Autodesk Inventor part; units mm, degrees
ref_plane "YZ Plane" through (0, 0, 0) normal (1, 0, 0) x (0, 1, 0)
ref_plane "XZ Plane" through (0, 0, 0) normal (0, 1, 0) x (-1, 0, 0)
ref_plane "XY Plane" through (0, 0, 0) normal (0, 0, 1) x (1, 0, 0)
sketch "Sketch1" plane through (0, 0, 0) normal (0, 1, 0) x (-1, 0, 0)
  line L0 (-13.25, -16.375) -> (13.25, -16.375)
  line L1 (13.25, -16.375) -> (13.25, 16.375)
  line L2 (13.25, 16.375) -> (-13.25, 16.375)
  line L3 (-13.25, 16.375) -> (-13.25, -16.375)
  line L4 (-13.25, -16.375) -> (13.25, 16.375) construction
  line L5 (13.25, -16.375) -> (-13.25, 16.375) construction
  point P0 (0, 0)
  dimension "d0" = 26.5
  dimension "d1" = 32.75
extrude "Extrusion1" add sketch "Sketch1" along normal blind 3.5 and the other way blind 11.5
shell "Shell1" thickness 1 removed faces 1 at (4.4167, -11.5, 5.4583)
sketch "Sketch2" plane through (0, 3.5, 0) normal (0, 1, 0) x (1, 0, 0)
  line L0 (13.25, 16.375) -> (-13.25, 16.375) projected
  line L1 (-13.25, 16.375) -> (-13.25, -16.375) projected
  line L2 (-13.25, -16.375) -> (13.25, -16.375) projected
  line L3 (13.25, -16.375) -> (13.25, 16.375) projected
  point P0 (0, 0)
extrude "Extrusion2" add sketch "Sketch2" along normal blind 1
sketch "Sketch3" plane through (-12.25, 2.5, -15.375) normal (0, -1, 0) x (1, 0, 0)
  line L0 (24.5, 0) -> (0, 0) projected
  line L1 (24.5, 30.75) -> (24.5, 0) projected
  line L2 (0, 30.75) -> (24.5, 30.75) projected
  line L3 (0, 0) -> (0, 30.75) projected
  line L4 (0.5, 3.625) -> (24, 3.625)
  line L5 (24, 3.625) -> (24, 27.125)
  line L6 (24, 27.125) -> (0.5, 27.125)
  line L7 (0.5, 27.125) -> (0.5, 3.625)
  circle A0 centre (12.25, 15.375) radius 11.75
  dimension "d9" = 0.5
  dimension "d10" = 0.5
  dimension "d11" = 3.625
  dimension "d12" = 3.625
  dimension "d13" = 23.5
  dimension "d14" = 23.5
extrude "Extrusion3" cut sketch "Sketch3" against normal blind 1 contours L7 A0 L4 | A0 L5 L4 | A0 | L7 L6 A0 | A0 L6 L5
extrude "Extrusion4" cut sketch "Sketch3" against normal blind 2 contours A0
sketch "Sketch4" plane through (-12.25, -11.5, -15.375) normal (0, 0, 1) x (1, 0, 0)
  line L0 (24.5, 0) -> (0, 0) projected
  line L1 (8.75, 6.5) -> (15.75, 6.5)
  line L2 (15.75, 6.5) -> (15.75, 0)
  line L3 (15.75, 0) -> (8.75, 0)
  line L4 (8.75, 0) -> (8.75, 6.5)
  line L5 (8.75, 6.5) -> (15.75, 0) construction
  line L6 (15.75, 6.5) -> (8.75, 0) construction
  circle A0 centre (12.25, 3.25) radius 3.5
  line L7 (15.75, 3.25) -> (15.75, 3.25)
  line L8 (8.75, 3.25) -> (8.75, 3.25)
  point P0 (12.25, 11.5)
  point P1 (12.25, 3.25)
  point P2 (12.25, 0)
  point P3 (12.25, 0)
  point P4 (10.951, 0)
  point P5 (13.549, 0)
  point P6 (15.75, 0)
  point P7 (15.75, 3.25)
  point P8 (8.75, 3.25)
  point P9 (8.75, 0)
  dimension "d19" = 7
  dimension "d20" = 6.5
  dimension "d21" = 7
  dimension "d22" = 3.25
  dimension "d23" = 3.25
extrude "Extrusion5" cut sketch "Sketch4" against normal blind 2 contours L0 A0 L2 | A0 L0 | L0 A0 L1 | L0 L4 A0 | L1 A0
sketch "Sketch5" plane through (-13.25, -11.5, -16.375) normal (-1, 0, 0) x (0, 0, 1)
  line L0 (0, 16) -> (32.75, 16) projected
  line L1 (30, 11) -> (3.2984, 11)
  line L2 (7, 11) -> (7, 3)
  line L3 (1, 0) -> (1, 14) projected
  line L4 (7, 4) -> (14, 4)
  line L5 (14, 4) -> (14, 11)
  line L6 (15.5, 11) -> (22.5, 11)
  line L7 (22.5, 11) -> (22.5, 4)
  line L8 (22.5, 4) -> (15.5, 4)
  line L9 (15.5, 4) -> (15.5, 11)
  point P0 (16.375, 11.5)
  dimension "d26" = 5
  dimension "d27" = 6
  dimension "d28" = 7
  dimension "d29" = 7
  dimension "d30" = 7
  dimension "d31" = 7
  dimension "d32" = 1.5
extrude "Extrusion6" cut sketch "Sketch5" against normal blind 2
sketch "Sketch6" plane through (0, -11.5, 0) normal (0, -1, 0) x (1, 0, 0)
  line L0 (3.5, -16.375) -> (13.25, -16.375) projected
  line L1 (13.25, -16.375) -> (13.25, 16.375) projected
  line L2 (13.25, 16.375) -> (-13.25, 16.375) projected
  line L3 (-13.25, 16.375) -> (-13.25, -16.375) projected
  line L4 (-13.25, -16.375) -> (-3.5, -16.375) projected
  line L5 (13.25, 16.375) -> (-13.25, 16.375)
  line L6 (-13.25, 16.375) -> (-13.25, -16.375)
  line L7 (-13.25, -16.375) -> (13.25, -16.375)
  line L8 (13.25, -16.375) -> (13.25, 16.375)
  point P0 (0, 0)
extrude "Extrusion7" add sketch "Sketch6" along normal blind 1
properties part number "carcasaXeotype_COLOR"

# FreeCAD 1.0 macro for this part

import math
import FreeCAD as App
import Part
import Sketcher

V = App.Vector


def faces_at(feature, points):
    """Names of the faces that lie closest to the given points."""
    faces = feature.Shape.Faces
    near = lambda p: min(range(len(faces)), key=lambda i: faces[i].distToShape(Part.Vertex(*p))[0])
    return sorted({f"Face{near(p) + 1}" for p in points})

doc = App.newDocument("Part")
body = doc.addObject("PartDesign::Body", "Body")

sketch1 = body.newObject("Sketcher::SketchObject", "Sketch")
sketch1.AttachmentSupport = (doc.getObject("XZ_Plane"), [""])
sketch1.MapMode = "FlatFace"
sketch1.addGeometry(Part.LineSegment(V(13, 16, 0), V(13, -16, 0)), False)
sketch1.addGeometry(Part.LineSegment(V(13, -16, 0), V(-13, -16, 0)), False)
sketch1.addGeometry(Part.LineSegment(V(-13, -16, 0), V(-13, 16, 0)), False)
sketch1.addGeometry(Part.LineSegment(V(-13, 16, 0), V(13, 16, 0)), False)
sketch1.addConstraint(Sketcher.Constraint("Coincident", 0, 2, 1, 1))
sketch1.addConstraint(Sketcher.Constraint("Coincident", 1, 2, 2, 1))
sketch1.addConstraint(Sketcher.Constraint("Coincident", 2, 2, 3, 1))
sketch1.addConstraint(Sketcher.Constraint("Coincident", 3, 2, 0, 1))
sketch1.addConstraint(Sketcher.Constraint("Vertical", 0))
sketch1.addConstraint(Sketcher.Constraint("Horizontal", 1))
sketch1.addConstraint(Sketcher.Constraint("Vertical", 2))
sketch1.addConstraint(Sketcher.Constraint("Horizontal", 3))
sketch1.addConstraint(Sketcher.Constraint("Symmetric", 0, 2, 2, 2, -1, 1))
sketch1.addConstraint(Sketcher.Constraint("DistanceX", 1, 2, 1, 1, 26.5))
sketch1.addConstraint(Sketcher.Constraint("DistanceY", 0, 2, 0, 1, 32.75))
pad1 = body.newObject("PartDesign::Pad", "Pad")
pad1.Profile = sketch1
pad1.Type = "TwoLengths"
pad1.Length = 3.5
pad1.Length2 = 11.5
pad1.Reversed = True
doc.recompute()

thickness = body.newObject("PartDesign::Thickness", "Thickness")
thickness.Base = (pad1, faces_at(pad1, [(4.417, -11.5, 5.458)]))
thickness.Value = 1
thickness.Reversed = True
thickness.Join = "Intersection"

sketch2 = body.newObject("Sketcher::SketchObject", "Sketch001")
sketch2.AttachmentSupport = (doc.getObject("XZ_Plane"), [""])
sketch2.MapMode = "FlatFace"
sketch2.AttachmentOffset = App.Placement(V(0, 0, -3.5), App.Rotation())
sketch2.addGeometry(Part.LineSegment(V(13, 16, 0), V(13, -16, 0)), False)
sketch2.addGeometry(Part.LineSegment(V(13, -16, 0), V(-13, -16, 0)), False)
sketch2.addGeometry(Part.LineSegment(V(-13, -16, 0), V(-13, 16, 0)), False)
sketch2.addGeometry(Part.LineSegment(V(-13, 16, 0), V(13, 16, 0)), False)
sketch2.addConstraint(Sketcher.Constraint("Coincident", 0, 2, 1, 1))
sketch2.addConstraint(Sketcher.Constraint("Coincident", 1, 2, 2, 1))
sketch2.addConstraint(Sketcher.Constraint("Coincident", 2, 2, 3, 1))
sketch2.addConstraint(Sketcher.Constraint("Coincident", 3, 2, 0, 1))
sketch2.addConstraint(Sketcher.Constraint("Vertical", 0))
sketch2.addConstraint(Sketcher.Constraint("Horizontal", 1))
sketch2.addConstraint(Sketcher.Constraint("Vertical", 2))
sketch2.addConstraint(Sketcher.Constraint("Horizontal", 3))
sketch2.addConstraint(Sketcher.Constraint("Symmetric", 0, 2, 2, 2, -1, 1))
sketch2.addConstraint(Sketcher.Constraint("DistanceX", 1, 2, 1, 1, 26.5))
sketch2.addConstraint(Sketcher.Constraint("DistanceY", 0, 2, 0, 1, 32.75))
pad2 = body.newObject("PartDesign::Pad", "Pad001")
pad2.Profile = sketch2
pad2.Length = 1
pad2.Reversed = True

sketch3 = body.newObject("Sketcher::SketchObject", "Sketch002")
sketch3.AttachmentSupport = (doc.getObject("XZ_Plane"), [""])
sketch3.MapMode = "FlatFace"
sketch3.AttachmentOffset = App.Placement(V(0, 0, -2.5), App.Rotation())
sketch3.addGeometry(Part.LineSegment(V(-12, -12, 0), V(12, -12, 0)), False)
sketch3.addGeometry(Part.LineSegment(V(12, -12, 0), V(12, 12, 0)), False)
sketch3.addGeometry(Part.LineSegment(V(12, 12, 0), V(-12, 12, 0)), False)
sketch3.addGeometry(Part.LineSegment(V(-12, 12, 0), V(-12, -12, 0)), False)
sketch3.addConstraint(Sketcher.Constraint("Coincident", 0, 2, 1, 1))
sketch3.addConstraint(Sketcher.Constraint("Coincident", 1, 2, 2, 1))
sketch3.addConstraint(Sketcher.Constraint("Coincident", 2, 2, 3, 1))
sketch3.addConstraint(Sketcher.Constraint("Coincident", 3, 2, 0, 1))
sketch3.addConstraint(Sketcher.Constraint("Horizontal", 0))
sketch3.addConstraint(Sketcher.Constraint("Vertical", 1))
sketch3.addConstraint(Sketcher.Constraint("Horizontal", 2))
sketch3.addConstraint(Sketcher.Constraint("Vertical", 3))
sketch3.addConstraint(Sketcher.Constraint("Symmetric", 0, 2, 2, 2, -1, 1))
sketch3.addConstraint(Sketcher.Constraint("Equal", 2, 1))
sketch3.addConstraint(Sketcher.Constraint("DistanceX", 0, 1, 0, 2, 23.5))
pocket1 = body.newObject("PartDesign::Pocket", "Pocket")
pocket1.Profile = sketch3
pocket1.Length = 1

sketch4 = body.newObject("Sketcher::SketchObject", "Sketch003")
sketch4.AttachmentSupport = (doc.getObject("XZ_Plane"), [""])
sketch4.MapMode = "FlatFace"
sketch4.AttachmentOffset = App.Placement(V(0, 0, -2.5), App.Rotation())
sketch4.addGeometry(Part.Circle(V(0, 0, 0), V(0, 0, 1), 12), False)
sketch4.addConstraint(Sketcher.Constraint("Coincident", 0, 3, -1, 1))
sketch4.addConstraint(Sketcher.Constraint("Diameter", 0, 23.5))
pocket2 = body.newObject("PartDesign::Pocket", "Pocket001")
pocket2.Profile = sketch4
pocket2.Length = 2

sketch5 = body.newObject("Sketcher::SketchObject", "Sketch004")
sketch5.AttachmentSupport = (doc.getObject("XY_Plane"), [""])
sketch5.MapMode = "FlatFace"
sketch5.AttachmentOffset = App.Placement(V(0, 0, -15.375), App.Rotation())
sketch5.addGeometry(Part.LineSegment(V(1.3, -11.5, 0), V(3.5, -11.5, 0)), False)
sketch5.addGeometry(Part.LineSegment(V(3.5, -11.5, 0), V(3.5, -8.2, 0)), False)
sketch5.addGeometry(Part.ArcOfCircle(Part.Circle(V(0, -8.2, 0), V(0, 0, 1), 3.5), math.radians(0), math.radians(180)), False)
sketch5.addGeometry(Part.LineSegment(V(-3.5, -8.2, 0), V(-3.5, -11.5, 0)), False)
sketch5.addGeometry(Part.LineSegment(V(-3.5, -11.5, 0), V(-1.3, -11.5, 0)), False)
sketch5.addGeometry(Part.ArcOfCircle(Part.Circle(V(0, -8.2, 0), V(0, 0, 1), 3.5), math.radians(-112), math.radians(-68)), False)
sketch5.addConstraint(Sketcher.Constraint("Coincident", 0, 2, 1, 1))
sketch5.addConstraint(Sketcher.Constraint("Tangent", 1, 2, 2, 1))
sketch5.addConstraint(Sketcher.Constraint("Tangent", 2, 2, 3, 1))
sketch5.addConstraint(Sketcher.Constraint("Coincident", 3, 2, 4, 1))
sketch5.addConstraint(Sketcher.Constraint("Coincident", 4, 2, 5, 1))
sketch5.addConstraint(Sketcher.Constraint("Coincident", 5, 2, 0, 1))
sketch5.addConstraint(Sketcher.Constraint("Horizontal", 0))
sketch5.addConstraint(Sketcher.Constraint("Vertical", 1))
sketch5.addConstraint(Sketcher.Constraint("Vertical", 3))
sketch5.addConstraint(Sketcher.Constraint("Horizontal", 4))
sketch5.addConstraint(Sketcher.Constraint("Coincident", 5, 3, 2, 3))
sketch5.addConstraint(Sketcher.Constraint("Equal", 2, 5))
sketch5.addConstraint(Sketcher.Constraint("Symmetric", 0, 2, 3, 2, -2))
sketch5.addConstraint(Sketcher.Constraint("Radius", 2, 3.5))
sketch5.addConstraint(Sketcher.Constraint("DistanceY", 1, 1, 1, 2, 3.25))
sketch5.addConstraint(Sketcher.Constraint("DistanceY", 0, 2, -1, 1, 11.5))
pocket3 = body.newObject("PartDesign::Pocket", "Pocket002")
pocket3.Profile = sketch5
pocket3.Length = 2

sketch6 = body.newObject("Sketcher::SketchObject", "Sketch005")
sketch6.AttachmentSupport = (doc.getObject("YZ_Plane"), [""])
sketch6.MapMode = "FlatFace"
sketch6.AttachmentOffset = App.Placement(V(0, 0, -13.25), App.Rotation())
sketch6.addGeometry(Part.LineSegment(V(-8, 6, 0), V(0, 6, 0)), False)
sketch6.addGeometry(Part.LineSegment(V(0, 6, 0), V(0, -1, 0)), False)
sketch6.addGeometry(Part.LineSegment(V(0, -1, 0), V(-8, -1, 0)), False)
sketch6.addGeometry(Part.LineSegment(V(-8, -1, 0), V(-8, 6, 0)), False)
sketch6.addGeometry(Part.LineSegment(V(-8, -2, 0), V(0, -2, 0)), False)
sketch6.addGeometry(Part.LineSegment(V(0, -2, 0), V(0, -9, 0)), False)
sketch6.addGeometry(Part.LineSegment(V(0, -9, 0), V(-8, -9, 0)), False)
sketch6.addGeometry(Part.LineSegment(V(-8, -9, 0), V(-8, -2, 0)), False)
sketch6.addConstraint(Sketcher.Constraint("Coincident", 0, 2, 1, 1))
sketch6.addConstraint(Sketcher.Constraint("Coincident", 1, 2, 2, 1))
sketch6.addConstraint(Sketcher.Constraint("Coincident", 2, 2, 3, 1))
sketch6.addConstraint(Sketcher.Constraint("Coincident", 3, 2, 0, 1))
sketch6.addConstraint(Sketcher.Constraint("Coincident", 4, 2, 5, 1))
sketch6.addConstraint(Sketcher.Constraint("Coincident", 5, 2, 6, 1))
sketch6.addConstraint(Sketcher.Constraint("Coincident", 6, 2, 7, 1))
sketch6.addConstraint(Sketcher.Constraint("Coincident", 7, 2, 4, 1))
sketch6.addConstraint(Sketcher.Constraint("Horizontal", 0))
sketch6.addConstraint(Sketcher.Constraint("Vertical", 1))
sketch6.addConstraint(Sketcher.Constraint("Horizontal", 2))
sketch6.addConstraint(Sketcher.Constraint("Vertical", 3))
sketch6.addConstraint(Sketcher.Constraint("Horizontal", 4))
sketch6.addConstraint(Sketcher.Constraint("Vertical", 5))
sketch6.addConstraint(Sketcher.Constraint("Horizontal", 6))
sketch6.addConstraint(Sketcher.Constraint("Vertical", 7))
sketch6.addConstraint(Sketcher.Constraint("Vertical", 1, 2, 4, 2))
sketch6.addConstraint(Sketcher.Constraint("Vertical", 3, 2, 6, 2))
sketch6.addConstraint(Sketcher.Constraint("Equal", 6, 1))
sketch6.addConstraint(Sketcher.Constraint("Equal", 3, 5))
sketch6.addConstraint(Sketcher.Constraint("DistanceX", 0, 1, 0, 2, 7.0))
sketch6.addConstraint(Sketcher.Constraint("DistanceY", 4, 2, 1, 2, 1.5))
sketch6.addConstraint(Sketcher.Constraint("DistanceX", 0, 2, -1, 1, 0.5))
sketch6.addConstraint(Sketcher.Constraint("DistanceY", -1, 1, 0, 2, 6.125))
pocket4 = body.newObject("PartDesign::Pocket", "Pocket003")
pocket4.Profile = sketch6
pocket4.Length = 2
pocket4.Reversed = True

sketch7 = body.newObject("Sketcher::SketchObject", "Sketch006")
sketch7.AttachmentSupport = (doc.getObject("XZ_Plane"), [""])
sketch7.MapMode = "FlatFace"
sketch7.AttachmentOffset = App.Placement(V(0, 0, 11.5), App.Rotation())
sketch7.addGeometry(Part.LineSegment(V(-13, -16, 0), V(13, -16, 0)), False)
sketch7.addGeometry(Part.LineSegment(V(13, -16, 0), V(13, 16, 0)), False)
sketch7.addGeometry(Part.LineSegment(V(13, 16, 0), V(-13, 16, 0)), False)
sketch7.addGeometry(Part.LineSegment(V(-13, 16, 0), V(-13, -16, 0)), False)
sketch7.addConstraint(Sketcher.Constraint("Coincident", 0, 2, 1, 1))
sketch7.addConstraint(Sketcher.Constraint("Coincident", 1, 2, 2, 1))
sketch7.addConstraint(Sketcher.Constraint("Coincident", 2, 2, 3, 1))
sketch7.addConstraint(Sketcher.Constraint("Coincident", 3, 2, 0, 1))
sketch7.addConstraint(Sketcher.Constraint("Horizontal", 0))
sketch7.addConstraint(Sketcher.Constraint("Vertical", 1))
sketch7.addConstraint(Sketcher.Constraint("Horizontal", 2))
sketch7.addConstraint(Sketcher.Constraint("Vertical", 3))
sketch7.addConstraint(Sketcher.Constraint("Symmetric", 0, 2, 2, 2, -1, 1))
sketch7.addConstraint(Sketcher.Constraint("DistanceX", 0, 1, 0, 2, 26.5))
sketch7.addConstraint(Sketcher.Constraint("DistanceY", 1, 1, 1, 2, 32.75))
pad3 = body.newObject("PartDesign::Pad", "Pad002")
pad3.Profile = sketch7
pad3.Length = 1

doc.recompute()
